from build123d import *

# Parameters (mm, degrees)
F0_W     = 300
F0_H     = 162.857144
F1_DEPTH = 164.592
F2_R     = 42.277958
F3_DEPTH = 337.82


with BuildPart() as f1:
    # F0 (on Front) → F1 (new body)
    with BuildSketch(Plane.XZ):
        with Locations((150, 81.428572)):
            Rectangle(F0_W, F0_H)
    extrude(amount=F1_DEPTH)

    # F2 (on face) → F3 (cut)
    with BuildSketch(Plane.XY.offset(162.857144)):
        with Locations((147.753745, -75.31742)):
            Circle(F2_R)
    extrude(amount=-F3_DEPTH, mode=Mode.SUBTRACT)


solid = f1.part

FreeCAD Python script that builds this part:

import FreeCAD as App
import Part
import Sketcher
Q = App.Units.Quantity


def add_polygon(sketch, points):
    """Adds a closed chain of lines whose ends are joined by coincident constraints."""
    first, n = sketch.GeometryCount, len(points)
    for a, b in zip(points, points[1:] + points[:1]):
        sketch.addGeometry(Part.LineSegment(App.Vector(*a, 0), App.Vector(*b, 0)), False)
    for i in range(n):
        sketch.addConstraint(Sketcher.Constraint("Coincident", first + i, 2, first + (i + 1) % n, 1))

doc = App.newDocument("Part")
body = doc.addObject("PartDesign::Body", "Body")

sketch1 = body.newObject("Sketcher::SketchObject", "Sketch")
sketch1.AttachmentSupport = (doc.getObject("XZ_Plane"), [""])
sketch1.MapMode = "FlatFace"
add_polygon(sketch1, [(0, 162.857144), (0, 0), (300, 0), (300, 162.857144)])
sketch1.addConstraint([
    Sketcher.Constraint("Vertical", 0),
    Sketcher.Constraint("Horizontal", 1),
    Sketcher.Constraint("Vertical", 2),
    Sketcher.Constraint("Horizontal", 3),
    Sketcher.Constraint("Coincident", 0, 2, -1, 1),
    Sketcher.Constraint("DistanceX", 1, 1, 1, 2, Q("300 mm")),
    Sketcher.Constraint("DistanceY", 0, 2, 0, 1, Q("162.857144 mm")),
])
pad1 = body.newObject("PartDesign::Pad", "Pad")
pad1.Profile = sketch1
pad1.Length = Q("6.48 in")

sketch2 = body.newObject("Sketcher::SketchObject", "Sketch001")
sketch2.AttachmentSupport = (doc.getObject("XY_Plane"), [""])
sketch2.MapMode = "FlatFace"
sketch2.AttachmentOffset = App.Placement(App.Vector(0, 0, 162.857144), App.Rotation())
sketch2.addGeometry(Part.Circle(App.Vector(147.753745, -75.31742, 0), App.Vector(0, 0, 1), 42.277958), False)
sketch2.addConstraint([
    Sketcher.Constraint("Diameter", 0, Q("84.555916 mm")),
    Sketcher.Constraint("DistanceY", 0, 3, -1, 1, Q("75.31742 mm")),
    Sketcher.Constraint("DistanceX", -1, 1, 0, 3, Q("147.753745 mm")),
])
pocket1 = body.newObject("PartDesign::Pocket", "Pocket")
pocket1.Profile = sketch2
pocket1.Length = Q("13.3 in")

doc.recompute()
